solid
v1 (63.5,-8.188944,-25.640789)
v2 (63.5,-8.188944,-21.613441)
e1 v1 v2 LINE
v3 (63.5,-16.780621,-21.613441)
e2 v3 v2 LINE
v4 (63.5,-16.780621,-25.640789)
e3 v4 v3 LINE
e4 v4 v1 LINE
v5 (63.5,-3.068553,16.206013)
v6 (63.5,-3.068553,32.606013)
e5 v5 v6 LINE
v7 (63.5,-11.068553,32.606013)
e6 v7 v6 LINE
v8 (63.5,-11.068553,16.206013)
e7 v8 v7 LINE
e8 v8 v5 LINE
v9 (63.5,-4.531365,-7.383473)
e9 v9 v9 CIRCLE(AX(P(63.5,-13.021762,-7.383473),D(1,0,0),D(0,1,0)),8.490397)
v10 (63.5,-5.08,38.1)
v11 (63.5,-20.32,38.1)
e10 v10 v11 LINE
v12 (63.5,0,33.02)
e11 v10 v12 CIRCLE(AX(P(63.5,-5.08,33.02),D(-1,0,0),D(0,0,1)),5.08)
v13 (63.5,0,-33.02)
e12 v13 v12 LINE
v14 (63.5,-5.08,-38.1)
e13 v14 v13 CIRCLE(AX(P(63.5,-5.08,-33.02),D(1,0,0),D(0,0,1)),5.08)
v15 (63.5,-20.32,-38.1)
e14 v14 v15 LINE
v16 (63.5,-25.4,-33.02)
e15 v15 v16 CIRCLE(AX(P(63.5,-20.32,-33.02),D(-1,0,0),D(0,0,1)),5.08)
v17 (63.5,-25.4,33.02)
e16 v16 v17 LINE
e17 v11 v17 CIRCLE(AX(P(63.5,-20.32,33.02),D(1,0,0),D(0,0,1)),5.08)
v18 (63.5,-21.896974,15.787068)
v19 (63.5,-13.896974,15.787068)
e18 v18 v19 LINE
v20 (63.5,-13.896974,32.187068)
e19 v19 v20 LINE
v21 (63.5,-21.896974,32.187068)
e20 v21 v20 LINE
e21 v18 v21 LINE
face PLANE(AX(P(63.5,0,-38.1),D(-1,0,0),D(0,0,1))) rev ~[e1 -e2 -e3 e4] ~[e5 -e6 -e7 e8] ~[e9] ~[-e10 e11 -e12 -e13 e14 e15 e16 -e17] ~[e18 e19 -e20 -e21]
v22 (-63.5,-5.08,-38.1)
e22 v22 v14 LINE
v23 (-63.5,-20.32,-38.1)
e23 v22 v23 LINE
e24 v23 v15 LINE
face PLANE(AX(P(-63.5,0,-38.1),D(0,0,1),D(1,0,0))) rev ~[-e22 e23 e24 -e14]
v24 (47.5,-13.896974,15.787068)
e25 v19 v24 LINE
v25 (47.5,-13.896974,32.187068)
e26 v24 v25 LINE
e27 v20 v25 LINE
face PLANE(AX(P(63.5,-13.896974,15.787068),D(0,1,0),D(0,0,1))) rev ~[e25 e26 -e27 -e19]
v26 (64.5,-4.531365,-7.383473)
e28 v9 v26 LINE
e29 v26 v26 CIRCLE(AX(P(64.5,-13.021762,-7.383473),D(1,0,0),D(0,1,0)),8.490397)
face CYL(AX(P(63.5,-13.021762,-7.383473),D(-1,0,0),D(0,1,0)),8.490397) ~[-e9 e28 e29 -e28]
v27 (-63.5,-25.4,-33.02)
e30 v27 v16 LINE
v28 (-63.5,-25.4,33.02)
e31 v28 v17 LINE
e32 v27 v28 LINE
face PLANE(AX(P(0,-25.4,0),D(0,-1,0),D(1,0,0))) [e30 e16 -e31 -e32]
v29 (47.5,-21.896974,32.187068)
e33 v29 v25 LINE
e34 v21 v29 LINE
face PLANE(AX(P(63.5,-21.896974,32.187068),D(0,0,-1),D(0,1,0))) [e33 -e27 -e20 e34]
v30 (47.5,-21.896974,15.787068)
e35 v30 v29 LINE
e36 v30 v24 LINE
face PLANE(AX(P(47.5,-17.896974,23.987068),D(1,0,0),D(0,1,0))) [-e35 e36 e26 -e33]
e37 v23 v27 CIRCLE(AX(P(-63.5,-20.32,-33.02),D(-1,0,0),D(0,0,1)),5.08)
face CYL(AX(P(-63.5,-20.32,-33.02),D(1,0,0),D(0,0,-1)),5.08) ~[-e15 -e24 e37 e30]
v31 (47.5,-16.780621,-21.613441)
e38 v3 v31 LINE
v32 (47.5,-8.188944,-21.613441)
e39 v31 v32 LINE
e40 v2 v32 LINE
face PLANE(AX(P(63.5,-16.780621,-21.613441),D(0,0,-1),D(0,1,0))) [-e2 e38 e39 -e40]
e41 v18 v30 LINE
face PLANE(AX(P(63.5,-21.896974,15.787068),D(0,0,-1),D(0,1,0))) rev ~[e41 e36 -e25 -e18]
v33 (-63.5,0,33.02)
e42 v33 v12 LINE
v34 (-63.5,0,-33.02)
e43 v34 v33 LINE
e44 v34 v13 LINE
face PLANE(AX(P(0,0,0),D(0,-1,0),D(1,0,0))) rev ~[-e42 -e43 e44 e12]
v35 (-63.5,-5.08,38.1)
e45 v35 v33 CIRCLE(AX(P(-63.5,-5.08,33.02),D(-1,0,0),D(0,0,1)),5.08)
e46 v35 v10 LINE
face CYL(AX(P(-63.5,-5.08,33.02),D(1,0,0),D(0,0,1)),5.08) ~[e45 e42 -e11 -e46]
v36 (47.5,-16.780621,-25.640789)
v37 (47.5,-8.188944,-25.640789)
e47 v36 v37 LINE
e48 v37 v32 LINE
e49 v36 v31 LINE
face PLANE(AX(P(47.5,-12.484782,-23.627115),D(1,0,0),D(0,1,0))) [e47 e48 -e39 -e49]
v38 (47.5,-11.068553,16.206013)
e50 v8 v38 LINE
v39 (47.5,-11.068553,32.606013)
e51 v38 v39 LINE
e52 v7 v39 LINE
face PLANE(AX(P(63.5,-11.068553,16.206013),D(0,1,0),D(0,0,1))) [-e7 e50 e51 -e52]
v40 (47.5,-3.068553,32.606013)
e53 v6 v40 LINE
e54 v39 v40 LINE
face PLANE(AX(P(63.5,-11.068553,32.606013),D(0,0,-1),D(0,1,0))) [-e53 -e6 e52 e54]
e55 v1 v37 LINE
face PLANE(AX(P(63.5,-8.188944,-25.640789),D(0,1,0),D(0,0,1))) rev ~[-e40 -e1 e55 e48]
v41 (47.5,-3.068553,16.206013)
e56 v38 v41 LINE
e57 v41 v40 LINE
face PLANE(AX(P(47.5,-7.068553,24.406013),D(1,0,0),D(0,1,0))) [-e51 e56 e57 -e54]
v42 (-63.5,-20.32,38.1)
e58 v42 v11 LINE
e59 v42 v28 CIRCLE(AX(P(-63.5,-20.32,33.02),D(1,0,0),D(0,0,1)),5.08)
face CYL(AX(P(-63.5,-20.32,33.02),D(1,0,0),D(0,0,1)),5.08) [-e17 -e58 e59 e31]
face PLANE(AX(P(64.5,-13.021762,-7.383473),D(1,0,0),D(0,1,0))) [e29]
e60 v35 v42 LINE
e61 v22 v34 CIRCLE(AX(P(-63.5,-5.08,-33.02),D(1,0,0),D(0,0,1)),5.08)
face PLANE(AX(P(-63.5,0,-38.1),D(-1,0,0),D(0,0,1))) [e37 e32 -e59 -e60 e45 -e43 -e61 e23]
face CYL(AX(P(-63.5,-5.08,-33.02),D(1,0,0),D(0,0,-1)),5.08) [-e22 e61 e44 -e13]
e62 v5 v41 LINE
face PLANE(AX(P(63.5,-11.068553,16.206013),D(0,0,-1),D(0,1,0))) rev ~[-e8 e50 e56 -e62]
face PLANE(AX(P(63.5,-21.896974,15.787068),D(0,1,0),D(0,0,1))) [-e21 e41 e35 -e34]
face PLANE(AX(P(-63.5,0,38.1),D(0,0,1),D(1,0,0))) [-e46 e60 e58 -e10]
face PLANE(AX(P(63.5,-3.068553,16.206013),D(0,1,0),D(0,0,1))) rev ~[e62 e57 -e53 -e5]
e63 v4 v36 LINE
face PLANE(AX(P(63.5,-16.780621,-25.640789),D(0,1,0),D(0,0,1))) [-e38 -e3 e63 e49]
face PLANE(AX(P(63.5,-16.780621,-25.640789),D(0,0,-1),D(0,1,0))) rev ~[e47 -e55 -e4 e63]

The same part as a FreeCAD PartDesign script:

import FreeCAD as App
import Part
import Sketcher
from FreeCAD import Vector


def edges_at(feature, points):
    """Names of the edges that pass closest to the given points."""
    edges = feature.Shape.Edges
    near = lambda p: min(range(len(edges)), key=lambda i: edges[i].distToShape(Part.Vertex(*p))[0])
    return sorted({f"Edge{near(p) + 1}" for p in points})

doc = App.newDocument("Part")
params = doc.addObject("Spreadsheet::Sheet", "Params")
for row, (alias, value) in enumerate([
    ("sketch1_width", "127 mm"),
    ("sketch1_height", "76.2 mm"),
    ("pad1_length", "25.4 mm"),
    ("fillet_radius", "5.08 mm"),
    ("sketch2_width", "8 mm"),
    ("sketch2_height", "16.4 mm"),
    ("pocket1_length", "16 mm"),
    ("sketch3_width", "8 mm"),
    ("sketch3_height", "16.4 mm"),
    ("pocket2_length", "16 mm"),
    ("pad2_length", "1 mm"),
    ("pocket3_length", "16 mm"),
], start=1):
    params.set(f"A{row}", alias)
    params.set(f"B{row}", "=" + value)
    params.setAlias(f"B{row}", alias)

body = doc.addObject("PartDesign::Body", "Body")

sketch1 = body.newObject("Sketcher::SketchObject", "Sketch")
sketch1.AttachmentSupport = (doc.getObject("XZ_Plane"), [""])
sketch1.MapMode = "FlatFace"
sketch1.addGeometry(Part.LineSegment(Vector(-64, 38, 0), Vector(-64, -38, 0)), False)
sketch1.addGeometry(Part.LineSegment(Vector(-64, -38, 0), Vector(64, -38, 0)), False)
sketch1.addGeometry(Part.LineSegment(Vector(64, -38, 0), Vector(64, 38, 0)), False)
sketch1.addGeometry(Part.LineSegment(Vector(64, 38, 0), Vector(-64, 38, 0)), False)
sketch1.addConstraint(Sketcher.Constraint("Coincident", 0, 2, 1, 1))
sketch1.addConstraint(Sketcher.Constraint("Coincident", 1, 2, 2, 1))
sketch1.addConstraint(Sketcher.Constraint("Coincident", 2, 2, 3, 1))
sketch1.addConstraint(Sketcher.Constraint("Coincident", 3, 2, 0, 1))
sketch1.addConstraint(Sketcher.Constraint("Vertical", 0))
sketch1.addConstraint(Sketcher.Constraint("Horizontal", 1))
sketch1.addConstraint(Sketcher.Constraint("Vertical", 2))
sketch1.addConstraint(Sketcher.Constraint("Horizontal", 3))
sketch1.addConstraint(Sketcher.Constraint("Symmetric", 0, 2, 2, 2, -1, 1))
sketch1.addConstraint(Sketcher.Constraint("DistanceX", 1, 1, 1, 2, 127.0))
sketch1.addConstraint(Sketcher.Constraint("DistanceY", 0, 2, 0, 1, 76.2))
sketch1.setExpression("Constraints[9]", "Params.sketch1_width")
sketch1.setExpression("Constraints[10]", "Params.sketch1_height")
pad1 = body.newObject("PartDesign::Pad", "Pad")
pad1.Profile = sketch1
pad1.setExpression("Length", "Params.pad1_length")
doc.recompute()

fillet = body.newObject("PartDesign::Fillet", "Fillet")
fillet.Base = (pad1, edges_at(pad1, [
    (0, -25.4, 38.1),
    (0, 0, 38.1),
    (0, 0, -38.1),
    (0, -25.4, -38.1),
]))
fillet.setExpression("Radius", "Params.fillet_radius")

sketch2 = body.newObject("Sketcher::SketchObject", "Sketch001")
sketch2.AttachmentSupport = (doc.getObject("YZ_Plane"), [""])
sketch2.MapMode = "FlatFace"
sketch2.AttachmentOffset = App.Placement(Vector(0, 0, 63.5), App.Rotation())
sketch2.addGeometry(Part.LineSegment(Vector(-22, 32, 0), Vector(-22, 16, 0)), False)
sketch2.addGeometry(Part.LineSegment(Vector(-22, 16, 0), Vector(-14, 16, 0)), False)
sketch2.addGeometry(Part.LineSegment(Vector(-14, 16, 0), Vector(-14, 32, 0)), False)
sketch2.addGeometry(Part.LineSegment(Vector(-14, 32, 0), Vector(-22, 32, 0)), False)
sketch2.addConstraint(Sketcher.Constraint("Coincident", 0, 2, 1, 1))
sketch2.addConstraint(Sketcher.Constraint("Coincident", 1, 2, 2, 1))
sketch2.addConstraint(Sketcher.Constraint("Coincident", 2, 2, 3, 1))
sketch2.addConstraint(Sketcher.Constraint("Coincident", 3, 2, 0, 1))
sketch2.addConstraint(Sketcher.Constraint("Vertical", 0))
sketch2.addConstraint(Sketcher.Constraint("Horizontal", 1))
sketch2.addConstraint(Sketcher.Constraint("Vertical", 2))
sketch2.addConstraint(Sketcher.Constraint("Horizontal", 3))
sketch2.addConstraint(Sketcher.Constraint("DistanceX", 1, 1, 1, 2, 8.0))
sketch2.addConstraint(Sketcher.Constraint("DistanceY", 0, 2, 0, 1, 16.4))
sketch2.addConstraint(Sketcher.Constraint("DistanceX", 0, 2, -1, 1, 21.896974))
sketch2.addConstraint(Sketcher.Constraint("DistanceY", -1, 1, 0, 2, 15.787068))
sketch2.setExpression("Constraints[8]", "Params.sketch2_width")
sketch2.setExpression("Constraints[9]", "Params.sketch2_height")
pocket1 = body.newObject("PartDesign::Pocket", "Pocket")
pocket1.Profile = sketch2
pocket1.setExpression("Length", "Params.pocket1_length")

sketch3 = body.newObject("Sketcher::SketchObject", "Sketch002")
sketch3.AttachmentSupport = (doc.getObject("YZ_Plane"), [""])
sketch3.MapMode = "FlatFace"
sketch3.AttachmentOffset = App.Placement(Vector(0, 0, 63.5), App.Rotation())
sketch3.addGeometry(Part.LineSegment(Vector(-11, 33, 0), Vector(-11, 16, 0)), False)
sketch3.addGeometry(Part.LineSegment(Vector(-11, 16, 0), Vector(-3, 16, 0)), False)
sketch3.addGeometry(Part.LineSegment(Vector(-3, 16, 0), Vector(-3, 33, 0)), False)
sketch3.addGeometry(Part.LineSegment(Vector(-3, 33, 0), Vector(-11, 33, 0)), False)
sketch3.addConstraint(Sketcher.Constraint("Coincident", 0, 2, 1, 1))
sketch3.addConstraint(Sketcher.Constraint("Coincident", 1, 2, 2, 1))
sketch3.addConstraint(Sketcher.Constraint("Coincident", 2, 2, 3, 1))
sketch3.addConstraint(Sketcher.Constraint("Coincident", 3, 2, 0, 1))
sketch3.addConstraint(Sketcher.Constraint("Vertical", 0))
sketch3.addConstraint(Sketcher.Constraint("Horizontal", 1))
sketch3.addConstraint(Sketcher.Constraint("Vertical", 2))
sketch3.addConstraint(Sketcher.Constraint("Horizontal", 3))
sketch3.addConstraint(Sketcher.Constraint("DistanceX", 1, 1, 1, 2, 8.0))
sketch3.addConstraint(Sketcher.Constraint("DistanceY", 0, 2, 0, 1, 16.4))
sketch3.addConstraint(Sketcher.Constraint("DistanceX", 0, 2, -1, 1, 11.068553))
sketch3.addConstraint(Sketcher.Constraint("DistanceY", -1, 1, 0, 2, 16.206013))
sketch3.setExpression("Constraints[8]", "Params.sketch3_width")
sketch3.setExpression("Constraints[9]", "Params.sketch3_height")
pocket2 = body.newObject("PartDesign::Pocket", "Pocket001")
pocket2.Profile = sketch3
pocket2.setExpression("Length", "Params.pocket2_length")

sketch4 = body.newObject("Sketcher::SketchObject", "Sketch003")
sketch4.AttachmentSupport = (doc.getObject("YZ_Plane"), [""])
sketch4.MapMode = "FlatFace"
sketch4.AttachmentOffset = App.Placement(Vector(0, 0, 63.5), App.Rotation())
sketch4.addGeometry(Part.Circle(Vector(-13, -7, 0), Vector(0, 0, 1), 8), False)
sketch4.addConstraint(Sketcher.Constraint("Diameter", 0, 16.980794))
sketch4.addConstraint(Sketcher.Constraint("DistanceX", 0, 3, -1, 1, 13.021762))
sketch4.addConstraint(Sketcher.Constraint("DistanceY", 0, 3, -1, 1, 7.383473))
pad2 = body.newObject("PartDesign::Pad", "Pad001")
pad2.Profile = sketch4
pad2.setExpression("Length", "Params.pad2_length")

sketch5 = body.newObject("Sketcher::SketchObject", "Sketch004")
sketch5.AttachmentSupport = (doc.getObject("YZ_Plane"), [""])
sketch5.MapMode = "FlatFace"
sketch5.AttachmentOffset = App.Placement(Vector(0, 0, 63.5), App.Rotation())
sketch5.addGeometry(Part.LineSegment(Vector(-16.8, -21.6, 0), Vector(-16.8, -25.6, 0)), False)
sketch5.addGeometry(Part.LineSegment(Vector(-16.8, -25.6, 0), Vector(-8.2, -25.6, 0)), False)
sketch5.addGeometry(Part.LineSegment(Vector(-8.2, -25.6, 0), Vector(-8.2, -21.6, 0)), False)
sketch5.addGeometry(Part.LineSegment(Vector(-8.2, -21.6, 0), Vector(-16.8, -21.6, 0)), False)
sketch5.addConstraint(Sketcher.Constraint("Coincident", 0, 2, 1, 1))
sketch5.addConstraint(Sketcher.Constraint("Coincident", 1, 2, 2, 1))
sketch5.addConstraint(Sketcher.Constraint("Coincident", 2, 2, 3, 1))
sketch5.addConstraint(Sketcher.Constraint("Coincident", 3, 2, 0, 1))
sketch5.addConstraint(Sketcher.Constraint("Vertical", 0))
sketch5.addConstraint(Sketcher.Constraint("Horizontal", 1))
sketch5.addConstraint(Sketcher.Constraint("Vertical", 2))
sketch5.addConstraint(Sketcher.Constraint("Horizontal", 3))
sketch5.addConstraint(Sketcher.Constraint("DistanceX", 1, 1, 1, 2, 8.591677))
sketch5.addConstraint(Sketcher.Constraint("DistanceY", 0, 2, 0, 1, 4.027348))
sketch5.addConstraint(Sketcher.Constraint("DistanceX", 0, 2, -1, 1, 16.780621))
sketch5.addConstraint(Sketcher.Constraint("DistanceY", 0, 2, -1, 1, 25.640789))
pocket3 = body.newObject("PartDesign::Pocket", "Pocket002")
pocket3.Profile = sketch5
pocket3.setExpression("Length", "Params.pocket3_length")

doc.recompute()
